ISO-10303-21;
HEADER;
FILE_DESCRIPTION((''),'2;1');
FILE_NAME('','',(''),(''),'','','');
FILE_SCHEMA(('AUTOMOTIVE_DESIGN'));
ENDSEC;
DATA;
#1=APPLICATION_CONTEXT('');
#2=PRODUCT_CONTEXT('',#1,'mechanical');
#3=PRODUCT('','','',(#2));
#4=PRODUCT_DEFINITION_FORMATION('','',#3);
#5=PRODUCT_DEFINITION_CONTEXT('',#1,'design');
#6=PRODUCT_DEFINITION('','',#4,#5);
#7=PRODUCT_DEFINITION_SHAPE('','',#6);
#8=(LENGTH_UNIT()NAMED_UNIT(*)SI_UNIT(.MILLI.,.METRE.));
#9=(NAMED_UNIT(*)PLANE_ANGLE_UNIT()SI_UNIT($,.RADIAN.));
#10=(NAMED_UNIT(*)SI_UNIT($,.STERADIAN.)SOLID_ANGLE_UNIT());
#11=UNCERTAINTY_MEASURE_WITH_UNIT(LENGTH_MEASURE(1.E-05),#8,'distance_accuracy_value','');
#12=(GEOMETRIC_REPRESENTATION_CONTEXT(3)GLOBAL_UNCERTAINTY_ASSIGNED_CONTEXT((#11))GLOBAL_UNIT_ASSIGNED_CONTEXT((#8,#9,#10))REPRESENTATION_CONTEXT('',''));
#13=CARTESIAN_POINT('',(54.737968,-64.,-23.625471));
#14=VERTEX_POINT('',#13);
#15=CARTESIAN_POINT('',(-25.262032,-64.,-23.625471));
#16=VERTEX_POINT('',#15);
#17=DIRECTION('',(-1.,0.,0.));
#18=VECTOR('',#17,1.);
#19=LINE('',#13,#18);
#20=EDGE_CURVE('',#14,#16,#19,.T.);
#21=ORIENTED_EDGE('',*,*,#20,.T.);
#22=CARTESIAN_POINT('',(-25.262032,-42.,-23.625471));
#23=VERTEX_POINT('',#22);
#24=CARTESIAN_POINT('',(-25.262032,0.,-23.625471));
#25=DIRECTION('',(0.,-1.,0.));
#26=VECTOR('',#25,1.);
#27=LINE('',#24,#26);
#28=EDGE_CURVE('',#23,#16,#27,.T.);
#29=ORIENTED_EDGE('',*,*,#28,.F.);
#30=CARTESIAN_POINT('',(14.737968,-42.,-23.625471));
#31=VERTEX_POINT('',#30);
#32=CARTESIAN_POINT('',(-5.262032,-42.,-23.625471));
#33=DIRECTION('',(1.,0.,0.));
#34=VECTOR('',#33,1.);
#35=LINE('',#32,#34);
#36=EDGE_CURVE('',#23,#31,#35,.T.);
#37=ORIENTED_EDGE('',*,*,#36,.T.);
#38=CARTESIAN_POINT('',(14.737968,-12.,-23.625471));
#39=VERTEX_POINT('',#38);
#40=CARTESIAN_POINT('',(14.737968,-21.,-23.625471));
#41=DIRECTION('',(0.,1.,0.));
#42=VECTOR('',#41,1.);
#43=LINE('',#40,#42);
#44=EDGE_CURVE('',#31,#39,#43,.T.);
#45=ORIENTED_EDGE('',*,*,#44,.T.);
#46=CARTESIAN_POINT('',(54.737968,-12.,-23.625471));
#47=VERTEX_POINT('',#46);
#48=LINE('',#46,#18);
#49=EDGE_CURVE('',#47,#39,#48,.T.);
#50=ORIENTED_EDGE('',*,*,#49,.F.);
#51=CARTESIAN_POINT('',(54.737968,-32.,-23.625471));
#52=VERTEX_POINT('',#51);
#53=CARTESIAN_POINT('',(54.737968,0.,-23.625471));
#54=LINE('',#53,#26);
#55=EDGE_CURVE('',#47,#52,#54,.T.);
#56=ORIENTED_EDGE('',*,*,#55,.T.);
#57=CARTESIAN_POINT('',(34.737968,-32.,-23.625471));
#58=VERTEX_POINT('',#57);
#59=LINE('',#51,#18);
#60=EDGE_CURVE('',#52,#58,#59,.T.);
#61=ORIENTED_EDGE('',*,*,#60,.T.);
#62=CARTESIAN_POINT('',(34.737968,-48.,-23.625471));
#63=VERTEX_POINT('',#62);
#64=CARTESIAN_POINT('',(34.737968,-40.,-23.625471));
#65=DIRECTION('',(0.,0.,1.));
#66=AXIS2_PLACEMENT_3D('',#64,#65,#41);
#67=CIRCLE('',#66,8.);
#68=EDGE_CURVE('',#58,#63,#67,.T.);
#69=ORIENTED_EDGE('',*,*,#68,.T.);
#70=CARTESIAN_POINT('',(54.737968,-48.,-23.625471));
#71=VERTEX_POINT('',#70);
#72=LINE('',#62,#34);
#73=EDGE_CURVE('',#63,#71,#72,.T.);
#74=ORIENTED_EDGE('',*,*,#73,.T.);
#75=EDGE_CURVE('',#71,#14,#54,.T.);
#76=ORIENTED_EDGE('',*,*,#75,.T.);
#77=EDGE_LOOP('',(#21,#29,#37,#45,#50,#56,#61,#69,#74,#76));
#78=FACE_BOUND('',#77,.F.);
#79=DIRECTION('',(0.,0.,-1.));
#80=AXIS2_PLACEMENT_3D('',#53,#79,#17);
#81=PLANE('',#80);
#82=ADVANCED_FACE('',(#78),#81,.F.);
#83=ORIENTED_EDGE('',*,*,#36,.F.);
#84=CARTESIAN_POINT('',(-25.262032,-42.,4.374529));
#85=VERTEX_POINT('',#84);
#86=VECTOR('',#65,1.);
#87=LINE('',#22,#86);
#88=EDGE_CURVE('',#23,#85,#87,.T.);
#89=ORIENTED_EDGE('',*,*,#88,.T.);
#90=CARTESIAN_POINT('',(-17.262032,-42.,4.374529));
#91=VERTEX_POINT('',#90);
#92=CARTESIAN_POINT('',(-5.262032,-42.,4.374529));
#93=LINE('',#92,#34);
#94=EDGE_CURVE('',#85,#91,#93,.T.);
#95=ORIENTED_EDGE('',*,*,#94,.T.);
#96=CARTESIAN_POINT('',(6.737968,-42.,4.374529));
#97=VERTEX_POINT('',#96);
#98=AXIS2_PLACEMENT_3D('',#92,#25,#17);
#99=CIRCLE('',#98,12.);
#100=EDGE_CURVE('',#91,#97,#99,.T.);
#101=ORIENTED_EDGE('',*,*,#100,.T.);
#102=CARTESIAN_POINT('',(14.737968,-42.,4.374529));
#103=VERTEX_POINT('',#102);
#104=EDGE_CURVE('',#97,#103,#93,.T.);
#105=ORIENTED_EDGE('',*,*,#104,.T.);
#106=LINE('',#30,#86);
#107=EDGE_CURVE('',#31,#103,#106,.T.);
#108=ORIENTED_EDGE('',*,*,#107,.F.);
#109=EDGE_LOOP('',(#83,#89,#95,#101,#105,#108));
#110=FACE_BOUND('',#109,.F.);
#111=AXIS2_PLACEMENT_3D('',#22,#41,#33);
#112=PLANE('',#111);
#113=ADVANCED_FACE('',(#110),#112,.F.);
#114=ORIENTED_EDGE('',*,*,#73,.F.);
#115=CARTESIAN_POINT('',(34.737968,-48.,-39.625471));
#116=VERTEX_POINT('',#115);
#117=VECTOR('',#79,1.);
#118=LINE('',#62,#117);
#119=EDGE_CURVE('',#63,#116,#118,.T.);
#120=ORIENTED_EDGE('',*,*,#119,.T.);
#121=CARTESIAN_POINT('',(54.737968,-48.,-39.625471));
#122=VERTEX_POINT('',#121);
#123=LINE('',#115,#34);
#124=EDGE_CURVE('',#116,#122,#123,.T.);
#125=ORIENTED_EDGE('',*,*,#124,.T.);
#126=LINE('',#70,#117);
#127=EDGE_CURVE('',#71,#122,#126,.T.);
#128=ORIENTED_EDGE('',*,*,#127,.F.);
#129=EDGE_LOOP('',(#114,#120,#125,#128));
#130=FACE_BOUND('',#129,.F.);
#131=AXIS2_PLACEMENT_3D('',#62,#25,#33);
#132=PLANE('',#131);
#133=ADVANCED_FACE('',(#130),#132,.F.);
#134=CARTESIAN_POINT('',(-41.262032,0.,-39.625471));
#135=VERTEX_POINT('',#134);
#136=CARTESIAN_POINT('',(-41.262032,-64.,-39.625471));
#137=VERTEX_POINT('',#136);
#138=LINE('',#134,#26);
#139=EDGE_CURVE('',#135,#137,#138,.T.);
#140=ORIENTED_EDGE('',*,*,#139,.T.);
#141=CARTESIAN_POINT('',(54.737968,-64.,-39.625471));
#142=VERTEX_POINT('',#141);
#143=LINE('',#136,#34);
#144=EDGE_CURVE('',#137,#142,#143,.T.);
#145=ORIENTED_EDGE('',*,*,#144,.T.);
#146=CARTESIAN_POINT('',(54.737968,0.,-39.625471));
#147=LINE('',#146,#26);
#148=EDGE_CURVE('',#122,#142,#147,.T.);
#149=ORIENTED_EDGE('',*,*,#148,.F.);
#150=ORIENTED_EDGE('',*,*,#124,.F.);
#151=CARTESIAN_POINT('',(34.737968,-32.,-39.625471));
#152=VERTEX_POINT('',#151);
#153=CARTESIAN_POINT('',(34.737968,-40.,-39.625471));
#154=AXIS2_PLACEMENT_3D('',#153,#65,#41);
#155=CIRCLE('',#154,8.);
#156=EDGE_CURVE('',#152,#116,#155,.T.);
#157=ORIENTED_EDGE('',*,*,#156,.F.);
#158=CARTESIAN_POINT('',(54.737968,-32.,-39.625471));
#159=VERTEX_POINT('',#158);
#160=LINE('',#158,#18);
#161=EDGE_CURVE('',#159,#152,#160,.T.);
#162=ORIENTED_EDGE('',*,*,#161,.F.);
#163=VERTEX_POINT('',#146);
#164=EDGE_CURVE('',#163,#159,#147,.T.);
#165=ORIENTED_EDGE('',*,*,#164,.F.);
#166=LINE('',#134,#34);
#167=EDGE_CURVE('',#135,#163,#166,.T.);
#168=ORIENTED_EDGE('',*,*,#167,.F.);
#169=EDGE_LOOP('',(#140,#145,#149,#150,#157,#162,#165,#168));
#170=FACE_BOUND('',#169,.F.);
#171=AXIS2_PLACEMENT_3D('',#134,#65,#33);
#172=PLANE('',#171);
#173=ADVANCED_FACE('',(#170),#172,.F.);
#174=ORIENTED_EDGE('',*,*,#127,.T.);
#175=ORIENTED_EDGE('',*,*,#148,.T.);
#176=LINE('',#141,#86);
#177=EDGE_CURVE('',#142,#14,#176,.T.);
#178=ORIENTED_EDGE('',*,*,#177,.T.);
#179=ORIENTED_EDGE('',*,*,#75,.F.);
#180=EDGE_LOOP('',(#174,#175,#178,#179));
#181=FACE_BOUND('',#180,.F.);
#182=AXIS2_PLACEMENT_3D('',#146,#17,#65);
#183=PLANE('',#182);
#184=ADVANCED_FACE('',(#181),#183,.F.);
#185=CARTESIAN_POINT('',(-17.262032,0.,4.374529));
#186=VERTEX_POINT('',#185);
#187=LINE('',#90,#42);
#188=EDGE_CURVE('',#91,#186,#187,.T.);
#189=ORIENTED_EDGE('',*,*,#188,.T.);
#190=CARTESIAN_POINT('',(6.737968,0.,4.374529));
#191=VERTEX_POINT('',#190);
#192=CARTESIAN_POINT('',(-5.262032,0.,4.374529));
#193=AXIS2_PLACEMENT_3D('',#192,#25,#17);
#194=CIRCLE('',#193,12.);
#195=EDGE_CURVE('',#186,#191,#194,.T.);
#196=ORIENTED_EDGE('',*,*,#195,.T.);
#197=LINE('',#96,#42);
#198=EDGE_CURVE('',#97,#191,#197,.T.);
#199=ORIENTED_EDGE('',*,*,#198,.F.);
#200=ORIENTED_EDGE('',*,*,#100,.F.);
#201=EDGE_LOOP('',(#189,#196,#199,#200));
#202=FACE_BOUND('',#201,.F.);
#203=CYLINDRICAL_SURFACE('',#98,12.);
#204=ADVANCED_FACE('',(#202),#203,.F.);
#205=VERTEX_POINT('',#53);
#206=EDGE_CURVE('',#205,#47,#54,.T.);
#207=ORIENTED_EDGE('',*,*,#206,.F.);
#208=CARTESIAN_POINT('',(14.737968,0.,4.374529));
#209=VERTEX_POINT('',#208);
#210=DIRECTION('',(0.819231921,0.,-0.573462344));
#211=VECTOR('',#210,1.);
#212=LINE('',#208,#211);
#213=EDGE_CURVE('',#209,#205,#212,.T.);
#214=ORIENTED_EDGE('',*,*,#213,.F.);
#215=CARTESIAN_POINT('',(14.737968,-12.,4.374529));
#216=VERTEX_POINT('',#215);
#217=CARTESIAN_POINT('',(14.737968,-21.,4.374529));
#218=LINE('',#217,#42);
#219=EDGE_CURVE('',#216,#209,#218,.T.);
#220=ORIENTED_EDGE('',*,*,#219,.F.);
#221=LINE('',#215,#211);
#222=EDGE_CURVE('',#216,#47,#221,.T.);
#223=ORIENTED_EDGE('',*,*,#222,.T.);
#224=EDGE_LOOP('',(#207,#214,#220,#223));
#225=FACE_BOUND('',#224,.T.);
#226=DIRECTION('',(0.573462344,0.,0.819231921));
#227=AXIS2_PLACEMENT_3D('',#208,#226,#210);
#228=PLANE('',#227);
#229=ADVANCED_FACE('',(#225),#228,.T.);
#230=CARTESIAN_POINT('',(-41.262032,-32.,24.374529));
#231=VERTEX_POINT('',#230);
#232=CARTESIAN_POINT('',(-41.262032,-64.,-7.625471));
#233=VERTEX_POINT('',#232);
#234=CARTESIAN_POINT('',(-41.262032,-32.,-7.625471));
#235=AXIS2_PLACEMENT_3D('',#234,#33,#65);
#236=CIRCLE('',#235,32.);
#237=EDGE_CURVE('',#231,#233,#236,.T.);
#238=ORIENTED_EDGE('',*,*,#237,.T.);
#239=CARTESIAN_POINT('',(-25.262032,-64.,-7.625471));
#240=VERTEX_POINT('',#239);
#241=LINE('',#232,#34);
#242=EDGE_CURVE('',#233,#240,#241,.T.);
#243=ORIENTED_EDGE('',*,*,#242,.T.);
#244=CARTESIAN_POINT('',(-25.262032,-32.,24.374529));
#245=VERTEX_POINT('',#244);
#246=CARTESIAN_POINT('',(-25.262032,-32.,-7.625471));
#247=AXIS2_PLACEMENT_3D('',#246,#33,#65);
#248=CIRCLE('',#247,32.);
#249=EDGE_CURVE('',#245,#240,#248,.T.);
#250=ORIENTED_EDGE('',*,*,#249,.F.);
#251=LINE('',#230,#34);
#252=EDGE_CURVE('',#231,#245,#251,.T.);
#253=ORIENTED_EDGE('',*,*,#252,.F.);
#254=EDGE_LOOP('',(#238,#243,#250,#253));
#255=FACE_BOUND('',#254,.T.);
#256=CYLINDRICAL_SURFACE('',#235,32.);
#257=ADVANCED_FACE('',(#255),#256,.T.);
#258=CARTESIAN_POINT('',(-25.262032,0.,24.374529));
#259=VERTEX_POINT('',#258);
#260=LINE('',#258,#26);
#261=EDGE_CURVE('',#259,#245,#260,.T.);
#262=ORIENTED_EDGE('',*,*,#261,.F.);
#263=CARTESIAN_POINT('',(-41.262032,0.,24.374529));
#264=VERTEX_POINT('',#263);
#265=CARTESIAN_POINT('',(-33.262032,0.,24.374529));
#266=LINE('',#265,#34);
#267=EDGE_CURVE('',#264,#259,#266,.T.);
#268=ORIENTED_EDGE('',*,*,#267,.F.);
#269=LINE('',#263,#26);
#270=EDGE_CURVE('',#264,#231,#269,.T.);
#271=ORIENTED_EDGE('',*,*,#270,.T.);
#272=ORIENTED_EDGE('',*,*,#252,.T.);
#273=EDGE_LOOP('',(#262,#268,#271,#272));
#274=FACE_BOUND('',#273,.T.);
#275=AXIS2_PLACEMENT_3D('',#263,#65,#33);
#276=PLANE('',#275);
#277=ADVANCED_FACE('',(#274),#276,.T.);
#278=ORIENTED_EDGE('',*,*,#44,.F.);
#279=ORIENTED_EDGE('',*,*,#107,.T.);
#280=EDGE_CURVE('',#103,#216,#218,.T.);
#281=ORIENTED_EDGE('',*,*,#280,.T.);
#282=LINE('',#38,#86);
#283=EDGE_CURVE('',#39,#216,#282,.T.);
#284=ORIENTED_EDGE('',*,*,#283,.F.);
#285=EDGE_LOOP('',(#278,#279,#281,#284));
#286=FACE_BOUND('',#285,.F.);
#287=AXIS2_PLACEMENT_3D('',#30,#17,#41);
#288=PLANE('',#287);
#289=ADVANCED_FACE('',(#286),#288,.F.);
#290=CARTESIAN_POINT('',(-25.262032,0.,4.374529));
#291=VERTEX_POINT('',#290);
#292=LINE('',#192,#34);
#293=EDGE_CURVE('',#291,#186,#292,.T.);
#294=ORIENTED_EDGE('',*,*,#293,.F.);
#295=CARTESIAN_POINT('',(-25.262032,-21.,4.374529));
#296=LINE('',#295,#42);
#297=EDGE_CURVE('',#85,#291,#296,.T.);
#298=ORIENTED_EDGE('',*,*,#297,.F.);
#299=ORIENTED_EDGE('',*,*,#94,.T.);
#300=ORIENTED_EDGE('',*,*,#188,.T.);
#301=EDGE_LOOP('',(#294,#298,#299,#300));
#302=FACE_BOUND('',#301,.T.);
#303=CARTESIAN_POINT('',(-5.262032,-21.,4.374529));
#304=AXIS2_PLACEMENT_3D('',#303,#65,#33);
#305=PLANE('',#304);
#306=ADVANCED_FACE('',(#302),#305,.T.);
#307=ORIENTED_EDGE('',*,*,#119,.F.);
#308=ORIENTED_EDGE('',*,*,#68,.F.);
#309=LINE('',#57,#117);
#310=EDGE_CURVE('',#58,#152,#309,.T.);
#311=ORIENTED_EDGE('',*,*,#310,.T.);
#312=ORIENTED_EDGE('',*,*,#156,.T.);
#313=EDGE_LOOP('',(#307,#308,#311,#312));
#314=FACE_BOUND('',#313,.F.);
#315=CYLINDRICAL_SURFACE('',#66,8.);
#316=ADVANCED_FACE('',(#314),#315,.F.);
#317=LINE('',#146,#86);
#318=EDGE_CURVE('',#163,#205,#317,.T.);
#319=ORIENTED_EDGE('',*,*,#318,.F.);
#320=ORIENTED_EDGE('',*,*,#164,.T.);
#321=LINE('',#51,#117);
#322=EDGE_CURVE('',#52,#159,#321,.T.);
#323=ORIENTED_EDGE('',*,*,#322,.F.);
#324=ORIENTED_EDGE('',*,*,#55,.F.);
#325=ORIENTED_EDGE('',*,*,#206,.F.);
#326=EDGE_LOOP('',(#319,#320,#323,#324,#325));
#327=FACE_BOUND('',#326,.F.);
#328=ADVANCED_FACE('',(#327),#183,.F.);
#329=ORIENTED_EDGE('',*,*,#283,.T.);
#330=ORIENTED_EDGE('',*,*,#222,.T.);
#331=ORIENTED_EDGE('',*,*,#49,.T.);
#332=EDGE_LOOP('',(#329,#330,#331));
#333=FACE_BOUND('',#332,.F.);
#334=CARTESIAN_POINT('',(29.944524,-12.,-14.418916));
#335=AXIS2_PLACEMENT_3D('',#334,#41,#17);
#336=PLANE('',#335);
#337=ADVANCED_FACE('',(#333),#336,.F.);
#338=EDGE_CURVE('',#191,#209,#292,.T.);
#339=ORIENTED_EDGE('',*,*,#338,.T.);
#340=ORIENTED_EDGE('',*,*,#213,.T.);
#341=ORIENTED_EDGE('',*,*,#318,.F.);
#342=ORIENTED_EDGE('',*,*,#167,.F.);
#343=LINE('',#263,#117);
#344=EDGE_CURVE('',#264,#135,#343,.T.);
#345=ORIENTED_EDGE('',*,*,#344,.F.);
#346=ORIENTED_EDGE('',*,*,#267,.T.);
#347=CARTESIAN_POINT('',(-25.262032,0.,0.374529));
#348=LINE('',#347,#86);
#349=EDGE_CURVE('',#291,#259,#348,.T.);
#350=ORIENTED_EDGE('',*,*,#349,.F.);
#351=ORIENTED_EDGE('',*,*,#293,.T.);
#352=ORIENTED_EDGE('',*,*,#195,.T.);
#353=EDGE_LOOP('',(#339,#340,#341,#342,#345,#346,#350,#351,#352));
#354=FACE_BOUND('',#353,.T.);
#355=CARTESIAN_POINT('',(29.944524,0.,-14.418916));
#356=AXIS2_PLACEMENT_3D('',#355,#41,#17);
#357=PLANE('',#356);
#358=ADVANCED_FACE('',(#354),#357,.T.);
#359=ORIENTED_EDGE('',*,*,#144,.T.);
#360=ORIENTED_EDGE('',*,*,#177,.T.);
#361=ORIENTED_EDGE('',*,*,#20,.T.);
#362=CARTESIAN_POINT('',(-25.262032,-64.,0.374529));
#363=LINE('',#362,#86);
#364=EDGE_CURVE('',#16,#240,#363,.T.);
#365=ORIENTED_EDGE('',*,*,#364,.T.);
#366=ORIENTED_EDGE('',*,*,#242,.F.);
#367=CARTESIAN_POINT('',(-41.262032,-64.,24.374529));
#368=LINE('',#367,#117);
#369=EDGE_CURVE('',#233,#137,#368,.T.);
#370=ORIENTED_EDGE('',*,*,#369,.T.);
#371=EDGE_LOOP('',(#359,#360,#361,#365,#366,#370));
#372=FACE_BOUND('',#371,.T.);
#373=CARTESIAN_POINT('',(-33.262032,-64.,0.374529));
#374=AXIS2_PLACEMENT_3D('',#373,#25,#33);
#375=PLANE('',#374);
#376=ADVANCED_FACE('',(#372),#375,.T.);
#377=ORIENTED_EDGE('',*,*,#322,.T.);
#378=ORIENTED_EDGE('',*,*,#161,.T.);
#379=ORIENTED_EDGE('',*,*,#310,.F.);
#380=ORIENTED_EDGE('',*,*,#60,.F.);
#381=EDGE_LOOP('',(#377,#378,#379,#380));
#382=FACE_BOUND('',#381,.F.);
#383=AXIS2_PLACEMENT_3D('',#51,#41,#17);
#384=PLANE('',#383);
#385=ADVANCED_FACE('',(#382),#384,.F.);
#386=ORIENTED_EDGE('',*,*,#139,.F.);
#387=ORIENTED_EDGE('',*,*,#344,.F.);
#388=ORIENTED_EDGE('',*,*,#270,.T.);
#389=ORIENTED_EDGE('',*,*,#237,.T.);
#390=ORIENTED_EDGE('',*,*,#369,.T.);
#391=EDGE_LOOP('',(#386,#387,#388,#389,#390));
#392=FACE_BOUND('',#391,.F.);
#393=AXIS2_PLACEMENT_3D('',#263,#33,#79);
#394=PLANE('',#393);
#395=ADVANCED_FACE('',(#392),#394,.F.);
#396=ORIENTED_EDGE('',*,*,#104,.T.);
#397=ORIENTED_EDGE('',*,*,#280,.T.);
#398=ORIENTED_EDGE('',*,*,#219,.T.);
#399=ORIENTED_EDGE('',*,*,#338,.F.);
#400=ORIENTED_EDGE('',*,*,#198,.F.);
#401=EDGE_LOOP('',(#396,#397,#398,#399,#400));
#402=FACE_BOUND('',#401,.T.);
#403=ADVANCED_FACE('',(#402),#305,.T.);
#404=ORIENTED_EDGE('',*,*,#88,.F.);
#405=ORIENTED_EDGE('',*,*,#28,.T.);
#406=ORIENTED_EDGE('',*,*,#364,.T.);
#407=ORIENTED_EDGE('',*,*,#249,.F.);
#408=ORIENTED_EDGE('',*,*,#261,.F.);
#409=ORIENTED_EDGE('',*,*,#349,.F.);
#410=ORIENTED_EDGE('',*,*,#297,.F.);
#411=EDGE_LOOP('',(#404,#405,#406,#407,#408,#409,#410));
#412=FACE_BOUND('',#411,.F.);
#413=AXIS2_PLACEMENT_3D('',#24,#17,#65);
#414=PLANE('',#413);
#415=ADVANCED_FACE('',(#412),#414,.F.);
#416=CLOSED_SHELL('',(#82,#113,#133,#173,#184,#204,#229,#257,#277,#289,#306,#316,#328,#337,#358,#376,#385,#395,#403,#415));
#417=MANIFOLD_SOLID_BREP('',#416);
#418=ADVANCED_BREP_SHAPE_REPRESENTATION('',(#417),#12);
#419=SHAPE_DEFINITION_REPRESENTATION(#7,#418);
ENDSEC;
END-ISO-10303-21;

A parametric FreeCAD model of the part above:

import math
import FreeCAD as App
import Part
import Sketcher
from FreeCAD import Vector
Q = App.Units.Quantity


def edges_at(feature, points):
    """Names of the edges that pass closest to the given points."""
    edges = feature.Shape.Edges
    near = lambda p: min(range(len(edges)), key=lambda i: edges[i].distToShape(Part.Vertex(*p))[0])
    return sorted({f"Edge{near(p) + 1}" for p in points})

doc = App.newDocument("Part")
body = doc.addObject("PartDesign::Body", "Body")

sketch1 = body.newObject("Sketcher::SketchObject", "Sketch")
sketch1.AttachmentSupport = (doc.getObject("XZ_Plane"), [""])
sketch1.MapMode = "FlatFace"
sketch1.addGeometry([
    Part.LineSegment(Vector(-41, 24, 0), Vector(-41, -40, 0)),
    Part.LineSegment(Vector(-41, -40, 0), Vector(55, -40, 0)),
    Part.LineSegment(Vector(55, -40, 0), Vector(55, -24, 0)),
    Part.LineSegment(Vector(55, -24, 0), Vector(-25, -24, 0)),
    Part.LineSegment(Vector(-25, -24, 0), Vector(-25, 24, 0)),
    Part.LineSegment(Vector(-25, 24, 0), Vector(-41, 24, 0)),
], False)
sketch1.addConstraint([
    Sketcher.Constraint("Coincident", 0, 2, 1, 1),
    Sketcher.Constraint("Coincident", 1, 2, 2, 1),
    Sketcher.Constraint("Coincident", 2, 2, 3, 1),
    Sketcher.Constraint("Coincident", 3, 2, 4, 1),
    Sketcher.Constraint("Coincident", 4, 2, 5, 1),
    Sketcher.Constraint("Coincident", 5, 2, 0, 1),
    Sketcher.Constraint("Vertical", 0),
    Sketcher.Constraint("Horizontal", 1),
    Sketcher.Constraint("Vertical", 2),
    Sketcher.Constraint("Horizontal", 3),
    Sketcher.Constraint("Vertical", 4),
    Sketcher.Constraint("Horizontal", 5),
    Sketcher.Constraint("Equal", 5, 2),
    Sketcher.Constraint("DistanceX", 1, 1, 1, 2, Q("96 mm")),
    Sketcher.Constraint("DistanceX", 3, 2, 3, 1, Q("80 mm")),
    Sketcher.Constraint("DistanceY", 0, 2, 0, 1, Q("64 mm")),
    Sketcher.Constraint("DistanceY", 0, 2, -1, 1, Q("39.625471 mm")),
    Sketcher.Constraint("DistanceX", 0, 2, -1, 1, Q("41.262032 mm")),
])
pad1 = body.newObject("PartDesign::Pad", "Pad")
pad1.Profile = sketch1
pad1.Length = 64
doc.recompute()

fillet = body.newObject("PartDesign::Fillet", "Fillet")
fillet.Base = (pad1, edges_at(pad1, [(-33.262, -64, 24.375)]))
fillet.Radius = 32

sketch2 = body.newObject("Sketcher::SketchObject", "Sketch001")
sketch2.AttachmentSupport = (doc.getObject("XY_Plane"), [""])
sketch2.MapMode = "FlatFace"
sketch2.AttachmentOffset = App.Placement(Vector(0, 0, -23.625471), App.Rotation())
sketch2.addGeometry([
    Part.LineSegment(Vector(55, -32, 0), Vector(35, -32, 0)),
    Part.ArcOfCircle(Part.Circle(Vector(35, -40, 0), Vector(0, 0, 1), 8), math.radians(90), math.radians(270)),
    Part.LineSegment(Vector(35, -48, 0), Vector(55, -48, 0)),
    Part.LineSegment(Vector(55, -48, 0), Vector(55, -32, 0)),
], False)
sketch2.addConstraint([
    Sketcher.Constraint("Tangent", 0, 2, 1, 1),
    Sketcher.Constraint("Tangent", 1, 2, 2, 1),
    Sketcher.Constraint("Coincident", 2, 2, 3, 1),
    Sketcher.Constraint("Coincident", 3, 2, 0, 1),
    Sketcher.Constraint("Horizontal", 0),
    Sketcher.Constraint("Horizontal", 2),
    Sketcher.Constraint("Vertical", 3),
    Sketcher.Constraint("Radius", 1, Q("8 mm")),
    Sketcher.Constraint("DistanceX", 0, 2, 0, 1, Q("20 mm")),
    Sketcher.Constraint("DistanceY", 1, 3, -1, 1, Q("40 mm")),
    Sketcher.Constraint("DistanceX", -1, 1, 1, 3, Q("34.737968 mm")),
])
pocket1 = body.newObject("PartDesign::Pocket", "Pocket")
pocket1.Profile = sketch2
pocket1.Type = "ThroughAll"

sketch3 = body.newObject("Sketcher::SketchObject", "Sketch002")
sketch3.AttachmentSupport = (doc.getObject("XY_Plane"), [""])
sketch3.MapMode = "FlatFace"
sketch3.AttachmentOffset = App.Placement(Vector(0, 0, -23.625471), App.Rotation())
sketch3.addGeometry([
    Part.LineSegment(Vector(-25, 0, 0), Vector(-25, -42, 0)),
    Part.LineSegment(Vector(-25, -42, 0), Vector(15, -42, 0)),
    Part.LineSegment(Vector(15, -42, 0), Vector(15, 0, 0)),
    Part.LineSegment(Vector(15, 0, 0), Vector(-25, 0, 0)),
], False)
sketch3.addConstraint([
    Sketcher.Constraint("Coincident", 0, 2, 1, 1),
    Sketcher.Constraint("Coincident", 1, 2, 2, 1),
    Sketcher.Constraint("Coincident", 2, 2, 3, 1),
    Sketcher.Constraint("Coincident", 3, 2, 0, 1),
    Sketcher.Constraint("Vertical", 0),
    Sketcher.Constraint("Horizontal", 1),
    Sketcher.Constraint("Vertical", 2),
    Sketcher.Constraint("Horizontal", 3),
    Sketcher.Constraint("PointOnObject", 2, 2, -1),
    Sketcher.Constraint("DistanceX", 1, 1, 1, 2, Q("40 mm")),
    Sketcher.Constraint("DistanceY", 0, 2, 0, 1, Q("42 mm")),
    Sketcher.Constraint("DistanceX", 0, 2, -1, 1, Q("25.262032 mm")),
])
pad2 = body.newObject("PartDesign::Pad", "Pad001")
pad2.Profile = sketch3
pad2.Length = 28

sketch4 = body.newObject("Sketcher::SketchObject", "Sketch003")
sketch4.AttachmentSupport = (doc.getObject("XZ_Plane"), [""])
sketch4.MapMode = "FlatFace"
sketch4.AttachmentOffset = App.Placement(Vector(0, 0, 42), App.Rotation())
sketch4.addGeometry([
    Part.ArcOfCircle(Part.Circle(Vector(-5, 4, 0), Vector(0, 0, 1), 12), math.radians(180), math.radians(360)),
    Part.LineSegment(Vector(7, 4, 0), Vector(-17, 4, 0)),
], False)
sketch4.addConstraint([
    Sketcher.Constraint("Coincident", 0, 1, 1, 2),
    Sketcher.Constraint("Coincident", 1, 1, 0, 2),
    Sketcher.Constraint("Horizontal", 1),
    Sketcher.Constraint("Radius", 0, Q("12 mm")),
    Sketcher.Constraint("DistanceY", -1, 1, 0, 3, Q("4.374529 mm")),
    Sketcher.Constraint("DistanceY", -1, 1, 0, 1, Q("4.374529 mm")),
    Sketcher.Constraint("DistanceX", 0, 3, -1, 1, Q("5.262032 mm")),
])
pocket2 = body.newObject("PartDesign::Pocket", "Pocket001")
pocket2.Profile = sketch4
pocket2.Type = "ThroughAll"
pocket2.Midplane = True

sketch5 = body.newObject("Sketcher::SketchObject", "Sketch004")
sketch5.AttachmentSupport = (doc.getObject("XZ_Plane"), [""])
sketch5.MapMode = "FlatFace"
sketch5.addGeometry([
    Part.LineSegment(Vector(15, -24, 0), Vector(15, 4, 0)),
    Part.LineSegment(Vector(15, 4, 0), Vector(55, -24, 0)),
    Part.LineSegment(Vector(55, -24, 0), Vector(15, -24, 0)),
], False)
sketch5.addConstraint([
    Sketcher.Constraint("Coincident", 0, 2, 1, 1),
    Sketcher.Constraint("Coincident", 1, 2, 2, 1),
    Sketcher.Constraint("Coincident", 2, 2, 0, 1),
    Sketcher.Constraint("Vertical", 0),
    Sketcher.Constraint("Horizontal", 2),
    Sketcher.Constraint("DistanceX", 2, 2, 2, 1, Q("40 mm")),
    Sketcher.Constraint("DistanceY", 0, 1, 0, 2, Q("28 mm")),
    Sketcher.Constraint("DistanceY", -1, 1, 0, 2, Q("4.374529 mm")),
    Sketcher.Constraint("DistanceX", -1, 1, 0, 2, Q("14.737968 mm")),
])
pad3 = body.newObject("PartDesign::Pad", "Pad002")
pad3.Profile = sketch5
pad3.Length = 12

doc.recompute()
